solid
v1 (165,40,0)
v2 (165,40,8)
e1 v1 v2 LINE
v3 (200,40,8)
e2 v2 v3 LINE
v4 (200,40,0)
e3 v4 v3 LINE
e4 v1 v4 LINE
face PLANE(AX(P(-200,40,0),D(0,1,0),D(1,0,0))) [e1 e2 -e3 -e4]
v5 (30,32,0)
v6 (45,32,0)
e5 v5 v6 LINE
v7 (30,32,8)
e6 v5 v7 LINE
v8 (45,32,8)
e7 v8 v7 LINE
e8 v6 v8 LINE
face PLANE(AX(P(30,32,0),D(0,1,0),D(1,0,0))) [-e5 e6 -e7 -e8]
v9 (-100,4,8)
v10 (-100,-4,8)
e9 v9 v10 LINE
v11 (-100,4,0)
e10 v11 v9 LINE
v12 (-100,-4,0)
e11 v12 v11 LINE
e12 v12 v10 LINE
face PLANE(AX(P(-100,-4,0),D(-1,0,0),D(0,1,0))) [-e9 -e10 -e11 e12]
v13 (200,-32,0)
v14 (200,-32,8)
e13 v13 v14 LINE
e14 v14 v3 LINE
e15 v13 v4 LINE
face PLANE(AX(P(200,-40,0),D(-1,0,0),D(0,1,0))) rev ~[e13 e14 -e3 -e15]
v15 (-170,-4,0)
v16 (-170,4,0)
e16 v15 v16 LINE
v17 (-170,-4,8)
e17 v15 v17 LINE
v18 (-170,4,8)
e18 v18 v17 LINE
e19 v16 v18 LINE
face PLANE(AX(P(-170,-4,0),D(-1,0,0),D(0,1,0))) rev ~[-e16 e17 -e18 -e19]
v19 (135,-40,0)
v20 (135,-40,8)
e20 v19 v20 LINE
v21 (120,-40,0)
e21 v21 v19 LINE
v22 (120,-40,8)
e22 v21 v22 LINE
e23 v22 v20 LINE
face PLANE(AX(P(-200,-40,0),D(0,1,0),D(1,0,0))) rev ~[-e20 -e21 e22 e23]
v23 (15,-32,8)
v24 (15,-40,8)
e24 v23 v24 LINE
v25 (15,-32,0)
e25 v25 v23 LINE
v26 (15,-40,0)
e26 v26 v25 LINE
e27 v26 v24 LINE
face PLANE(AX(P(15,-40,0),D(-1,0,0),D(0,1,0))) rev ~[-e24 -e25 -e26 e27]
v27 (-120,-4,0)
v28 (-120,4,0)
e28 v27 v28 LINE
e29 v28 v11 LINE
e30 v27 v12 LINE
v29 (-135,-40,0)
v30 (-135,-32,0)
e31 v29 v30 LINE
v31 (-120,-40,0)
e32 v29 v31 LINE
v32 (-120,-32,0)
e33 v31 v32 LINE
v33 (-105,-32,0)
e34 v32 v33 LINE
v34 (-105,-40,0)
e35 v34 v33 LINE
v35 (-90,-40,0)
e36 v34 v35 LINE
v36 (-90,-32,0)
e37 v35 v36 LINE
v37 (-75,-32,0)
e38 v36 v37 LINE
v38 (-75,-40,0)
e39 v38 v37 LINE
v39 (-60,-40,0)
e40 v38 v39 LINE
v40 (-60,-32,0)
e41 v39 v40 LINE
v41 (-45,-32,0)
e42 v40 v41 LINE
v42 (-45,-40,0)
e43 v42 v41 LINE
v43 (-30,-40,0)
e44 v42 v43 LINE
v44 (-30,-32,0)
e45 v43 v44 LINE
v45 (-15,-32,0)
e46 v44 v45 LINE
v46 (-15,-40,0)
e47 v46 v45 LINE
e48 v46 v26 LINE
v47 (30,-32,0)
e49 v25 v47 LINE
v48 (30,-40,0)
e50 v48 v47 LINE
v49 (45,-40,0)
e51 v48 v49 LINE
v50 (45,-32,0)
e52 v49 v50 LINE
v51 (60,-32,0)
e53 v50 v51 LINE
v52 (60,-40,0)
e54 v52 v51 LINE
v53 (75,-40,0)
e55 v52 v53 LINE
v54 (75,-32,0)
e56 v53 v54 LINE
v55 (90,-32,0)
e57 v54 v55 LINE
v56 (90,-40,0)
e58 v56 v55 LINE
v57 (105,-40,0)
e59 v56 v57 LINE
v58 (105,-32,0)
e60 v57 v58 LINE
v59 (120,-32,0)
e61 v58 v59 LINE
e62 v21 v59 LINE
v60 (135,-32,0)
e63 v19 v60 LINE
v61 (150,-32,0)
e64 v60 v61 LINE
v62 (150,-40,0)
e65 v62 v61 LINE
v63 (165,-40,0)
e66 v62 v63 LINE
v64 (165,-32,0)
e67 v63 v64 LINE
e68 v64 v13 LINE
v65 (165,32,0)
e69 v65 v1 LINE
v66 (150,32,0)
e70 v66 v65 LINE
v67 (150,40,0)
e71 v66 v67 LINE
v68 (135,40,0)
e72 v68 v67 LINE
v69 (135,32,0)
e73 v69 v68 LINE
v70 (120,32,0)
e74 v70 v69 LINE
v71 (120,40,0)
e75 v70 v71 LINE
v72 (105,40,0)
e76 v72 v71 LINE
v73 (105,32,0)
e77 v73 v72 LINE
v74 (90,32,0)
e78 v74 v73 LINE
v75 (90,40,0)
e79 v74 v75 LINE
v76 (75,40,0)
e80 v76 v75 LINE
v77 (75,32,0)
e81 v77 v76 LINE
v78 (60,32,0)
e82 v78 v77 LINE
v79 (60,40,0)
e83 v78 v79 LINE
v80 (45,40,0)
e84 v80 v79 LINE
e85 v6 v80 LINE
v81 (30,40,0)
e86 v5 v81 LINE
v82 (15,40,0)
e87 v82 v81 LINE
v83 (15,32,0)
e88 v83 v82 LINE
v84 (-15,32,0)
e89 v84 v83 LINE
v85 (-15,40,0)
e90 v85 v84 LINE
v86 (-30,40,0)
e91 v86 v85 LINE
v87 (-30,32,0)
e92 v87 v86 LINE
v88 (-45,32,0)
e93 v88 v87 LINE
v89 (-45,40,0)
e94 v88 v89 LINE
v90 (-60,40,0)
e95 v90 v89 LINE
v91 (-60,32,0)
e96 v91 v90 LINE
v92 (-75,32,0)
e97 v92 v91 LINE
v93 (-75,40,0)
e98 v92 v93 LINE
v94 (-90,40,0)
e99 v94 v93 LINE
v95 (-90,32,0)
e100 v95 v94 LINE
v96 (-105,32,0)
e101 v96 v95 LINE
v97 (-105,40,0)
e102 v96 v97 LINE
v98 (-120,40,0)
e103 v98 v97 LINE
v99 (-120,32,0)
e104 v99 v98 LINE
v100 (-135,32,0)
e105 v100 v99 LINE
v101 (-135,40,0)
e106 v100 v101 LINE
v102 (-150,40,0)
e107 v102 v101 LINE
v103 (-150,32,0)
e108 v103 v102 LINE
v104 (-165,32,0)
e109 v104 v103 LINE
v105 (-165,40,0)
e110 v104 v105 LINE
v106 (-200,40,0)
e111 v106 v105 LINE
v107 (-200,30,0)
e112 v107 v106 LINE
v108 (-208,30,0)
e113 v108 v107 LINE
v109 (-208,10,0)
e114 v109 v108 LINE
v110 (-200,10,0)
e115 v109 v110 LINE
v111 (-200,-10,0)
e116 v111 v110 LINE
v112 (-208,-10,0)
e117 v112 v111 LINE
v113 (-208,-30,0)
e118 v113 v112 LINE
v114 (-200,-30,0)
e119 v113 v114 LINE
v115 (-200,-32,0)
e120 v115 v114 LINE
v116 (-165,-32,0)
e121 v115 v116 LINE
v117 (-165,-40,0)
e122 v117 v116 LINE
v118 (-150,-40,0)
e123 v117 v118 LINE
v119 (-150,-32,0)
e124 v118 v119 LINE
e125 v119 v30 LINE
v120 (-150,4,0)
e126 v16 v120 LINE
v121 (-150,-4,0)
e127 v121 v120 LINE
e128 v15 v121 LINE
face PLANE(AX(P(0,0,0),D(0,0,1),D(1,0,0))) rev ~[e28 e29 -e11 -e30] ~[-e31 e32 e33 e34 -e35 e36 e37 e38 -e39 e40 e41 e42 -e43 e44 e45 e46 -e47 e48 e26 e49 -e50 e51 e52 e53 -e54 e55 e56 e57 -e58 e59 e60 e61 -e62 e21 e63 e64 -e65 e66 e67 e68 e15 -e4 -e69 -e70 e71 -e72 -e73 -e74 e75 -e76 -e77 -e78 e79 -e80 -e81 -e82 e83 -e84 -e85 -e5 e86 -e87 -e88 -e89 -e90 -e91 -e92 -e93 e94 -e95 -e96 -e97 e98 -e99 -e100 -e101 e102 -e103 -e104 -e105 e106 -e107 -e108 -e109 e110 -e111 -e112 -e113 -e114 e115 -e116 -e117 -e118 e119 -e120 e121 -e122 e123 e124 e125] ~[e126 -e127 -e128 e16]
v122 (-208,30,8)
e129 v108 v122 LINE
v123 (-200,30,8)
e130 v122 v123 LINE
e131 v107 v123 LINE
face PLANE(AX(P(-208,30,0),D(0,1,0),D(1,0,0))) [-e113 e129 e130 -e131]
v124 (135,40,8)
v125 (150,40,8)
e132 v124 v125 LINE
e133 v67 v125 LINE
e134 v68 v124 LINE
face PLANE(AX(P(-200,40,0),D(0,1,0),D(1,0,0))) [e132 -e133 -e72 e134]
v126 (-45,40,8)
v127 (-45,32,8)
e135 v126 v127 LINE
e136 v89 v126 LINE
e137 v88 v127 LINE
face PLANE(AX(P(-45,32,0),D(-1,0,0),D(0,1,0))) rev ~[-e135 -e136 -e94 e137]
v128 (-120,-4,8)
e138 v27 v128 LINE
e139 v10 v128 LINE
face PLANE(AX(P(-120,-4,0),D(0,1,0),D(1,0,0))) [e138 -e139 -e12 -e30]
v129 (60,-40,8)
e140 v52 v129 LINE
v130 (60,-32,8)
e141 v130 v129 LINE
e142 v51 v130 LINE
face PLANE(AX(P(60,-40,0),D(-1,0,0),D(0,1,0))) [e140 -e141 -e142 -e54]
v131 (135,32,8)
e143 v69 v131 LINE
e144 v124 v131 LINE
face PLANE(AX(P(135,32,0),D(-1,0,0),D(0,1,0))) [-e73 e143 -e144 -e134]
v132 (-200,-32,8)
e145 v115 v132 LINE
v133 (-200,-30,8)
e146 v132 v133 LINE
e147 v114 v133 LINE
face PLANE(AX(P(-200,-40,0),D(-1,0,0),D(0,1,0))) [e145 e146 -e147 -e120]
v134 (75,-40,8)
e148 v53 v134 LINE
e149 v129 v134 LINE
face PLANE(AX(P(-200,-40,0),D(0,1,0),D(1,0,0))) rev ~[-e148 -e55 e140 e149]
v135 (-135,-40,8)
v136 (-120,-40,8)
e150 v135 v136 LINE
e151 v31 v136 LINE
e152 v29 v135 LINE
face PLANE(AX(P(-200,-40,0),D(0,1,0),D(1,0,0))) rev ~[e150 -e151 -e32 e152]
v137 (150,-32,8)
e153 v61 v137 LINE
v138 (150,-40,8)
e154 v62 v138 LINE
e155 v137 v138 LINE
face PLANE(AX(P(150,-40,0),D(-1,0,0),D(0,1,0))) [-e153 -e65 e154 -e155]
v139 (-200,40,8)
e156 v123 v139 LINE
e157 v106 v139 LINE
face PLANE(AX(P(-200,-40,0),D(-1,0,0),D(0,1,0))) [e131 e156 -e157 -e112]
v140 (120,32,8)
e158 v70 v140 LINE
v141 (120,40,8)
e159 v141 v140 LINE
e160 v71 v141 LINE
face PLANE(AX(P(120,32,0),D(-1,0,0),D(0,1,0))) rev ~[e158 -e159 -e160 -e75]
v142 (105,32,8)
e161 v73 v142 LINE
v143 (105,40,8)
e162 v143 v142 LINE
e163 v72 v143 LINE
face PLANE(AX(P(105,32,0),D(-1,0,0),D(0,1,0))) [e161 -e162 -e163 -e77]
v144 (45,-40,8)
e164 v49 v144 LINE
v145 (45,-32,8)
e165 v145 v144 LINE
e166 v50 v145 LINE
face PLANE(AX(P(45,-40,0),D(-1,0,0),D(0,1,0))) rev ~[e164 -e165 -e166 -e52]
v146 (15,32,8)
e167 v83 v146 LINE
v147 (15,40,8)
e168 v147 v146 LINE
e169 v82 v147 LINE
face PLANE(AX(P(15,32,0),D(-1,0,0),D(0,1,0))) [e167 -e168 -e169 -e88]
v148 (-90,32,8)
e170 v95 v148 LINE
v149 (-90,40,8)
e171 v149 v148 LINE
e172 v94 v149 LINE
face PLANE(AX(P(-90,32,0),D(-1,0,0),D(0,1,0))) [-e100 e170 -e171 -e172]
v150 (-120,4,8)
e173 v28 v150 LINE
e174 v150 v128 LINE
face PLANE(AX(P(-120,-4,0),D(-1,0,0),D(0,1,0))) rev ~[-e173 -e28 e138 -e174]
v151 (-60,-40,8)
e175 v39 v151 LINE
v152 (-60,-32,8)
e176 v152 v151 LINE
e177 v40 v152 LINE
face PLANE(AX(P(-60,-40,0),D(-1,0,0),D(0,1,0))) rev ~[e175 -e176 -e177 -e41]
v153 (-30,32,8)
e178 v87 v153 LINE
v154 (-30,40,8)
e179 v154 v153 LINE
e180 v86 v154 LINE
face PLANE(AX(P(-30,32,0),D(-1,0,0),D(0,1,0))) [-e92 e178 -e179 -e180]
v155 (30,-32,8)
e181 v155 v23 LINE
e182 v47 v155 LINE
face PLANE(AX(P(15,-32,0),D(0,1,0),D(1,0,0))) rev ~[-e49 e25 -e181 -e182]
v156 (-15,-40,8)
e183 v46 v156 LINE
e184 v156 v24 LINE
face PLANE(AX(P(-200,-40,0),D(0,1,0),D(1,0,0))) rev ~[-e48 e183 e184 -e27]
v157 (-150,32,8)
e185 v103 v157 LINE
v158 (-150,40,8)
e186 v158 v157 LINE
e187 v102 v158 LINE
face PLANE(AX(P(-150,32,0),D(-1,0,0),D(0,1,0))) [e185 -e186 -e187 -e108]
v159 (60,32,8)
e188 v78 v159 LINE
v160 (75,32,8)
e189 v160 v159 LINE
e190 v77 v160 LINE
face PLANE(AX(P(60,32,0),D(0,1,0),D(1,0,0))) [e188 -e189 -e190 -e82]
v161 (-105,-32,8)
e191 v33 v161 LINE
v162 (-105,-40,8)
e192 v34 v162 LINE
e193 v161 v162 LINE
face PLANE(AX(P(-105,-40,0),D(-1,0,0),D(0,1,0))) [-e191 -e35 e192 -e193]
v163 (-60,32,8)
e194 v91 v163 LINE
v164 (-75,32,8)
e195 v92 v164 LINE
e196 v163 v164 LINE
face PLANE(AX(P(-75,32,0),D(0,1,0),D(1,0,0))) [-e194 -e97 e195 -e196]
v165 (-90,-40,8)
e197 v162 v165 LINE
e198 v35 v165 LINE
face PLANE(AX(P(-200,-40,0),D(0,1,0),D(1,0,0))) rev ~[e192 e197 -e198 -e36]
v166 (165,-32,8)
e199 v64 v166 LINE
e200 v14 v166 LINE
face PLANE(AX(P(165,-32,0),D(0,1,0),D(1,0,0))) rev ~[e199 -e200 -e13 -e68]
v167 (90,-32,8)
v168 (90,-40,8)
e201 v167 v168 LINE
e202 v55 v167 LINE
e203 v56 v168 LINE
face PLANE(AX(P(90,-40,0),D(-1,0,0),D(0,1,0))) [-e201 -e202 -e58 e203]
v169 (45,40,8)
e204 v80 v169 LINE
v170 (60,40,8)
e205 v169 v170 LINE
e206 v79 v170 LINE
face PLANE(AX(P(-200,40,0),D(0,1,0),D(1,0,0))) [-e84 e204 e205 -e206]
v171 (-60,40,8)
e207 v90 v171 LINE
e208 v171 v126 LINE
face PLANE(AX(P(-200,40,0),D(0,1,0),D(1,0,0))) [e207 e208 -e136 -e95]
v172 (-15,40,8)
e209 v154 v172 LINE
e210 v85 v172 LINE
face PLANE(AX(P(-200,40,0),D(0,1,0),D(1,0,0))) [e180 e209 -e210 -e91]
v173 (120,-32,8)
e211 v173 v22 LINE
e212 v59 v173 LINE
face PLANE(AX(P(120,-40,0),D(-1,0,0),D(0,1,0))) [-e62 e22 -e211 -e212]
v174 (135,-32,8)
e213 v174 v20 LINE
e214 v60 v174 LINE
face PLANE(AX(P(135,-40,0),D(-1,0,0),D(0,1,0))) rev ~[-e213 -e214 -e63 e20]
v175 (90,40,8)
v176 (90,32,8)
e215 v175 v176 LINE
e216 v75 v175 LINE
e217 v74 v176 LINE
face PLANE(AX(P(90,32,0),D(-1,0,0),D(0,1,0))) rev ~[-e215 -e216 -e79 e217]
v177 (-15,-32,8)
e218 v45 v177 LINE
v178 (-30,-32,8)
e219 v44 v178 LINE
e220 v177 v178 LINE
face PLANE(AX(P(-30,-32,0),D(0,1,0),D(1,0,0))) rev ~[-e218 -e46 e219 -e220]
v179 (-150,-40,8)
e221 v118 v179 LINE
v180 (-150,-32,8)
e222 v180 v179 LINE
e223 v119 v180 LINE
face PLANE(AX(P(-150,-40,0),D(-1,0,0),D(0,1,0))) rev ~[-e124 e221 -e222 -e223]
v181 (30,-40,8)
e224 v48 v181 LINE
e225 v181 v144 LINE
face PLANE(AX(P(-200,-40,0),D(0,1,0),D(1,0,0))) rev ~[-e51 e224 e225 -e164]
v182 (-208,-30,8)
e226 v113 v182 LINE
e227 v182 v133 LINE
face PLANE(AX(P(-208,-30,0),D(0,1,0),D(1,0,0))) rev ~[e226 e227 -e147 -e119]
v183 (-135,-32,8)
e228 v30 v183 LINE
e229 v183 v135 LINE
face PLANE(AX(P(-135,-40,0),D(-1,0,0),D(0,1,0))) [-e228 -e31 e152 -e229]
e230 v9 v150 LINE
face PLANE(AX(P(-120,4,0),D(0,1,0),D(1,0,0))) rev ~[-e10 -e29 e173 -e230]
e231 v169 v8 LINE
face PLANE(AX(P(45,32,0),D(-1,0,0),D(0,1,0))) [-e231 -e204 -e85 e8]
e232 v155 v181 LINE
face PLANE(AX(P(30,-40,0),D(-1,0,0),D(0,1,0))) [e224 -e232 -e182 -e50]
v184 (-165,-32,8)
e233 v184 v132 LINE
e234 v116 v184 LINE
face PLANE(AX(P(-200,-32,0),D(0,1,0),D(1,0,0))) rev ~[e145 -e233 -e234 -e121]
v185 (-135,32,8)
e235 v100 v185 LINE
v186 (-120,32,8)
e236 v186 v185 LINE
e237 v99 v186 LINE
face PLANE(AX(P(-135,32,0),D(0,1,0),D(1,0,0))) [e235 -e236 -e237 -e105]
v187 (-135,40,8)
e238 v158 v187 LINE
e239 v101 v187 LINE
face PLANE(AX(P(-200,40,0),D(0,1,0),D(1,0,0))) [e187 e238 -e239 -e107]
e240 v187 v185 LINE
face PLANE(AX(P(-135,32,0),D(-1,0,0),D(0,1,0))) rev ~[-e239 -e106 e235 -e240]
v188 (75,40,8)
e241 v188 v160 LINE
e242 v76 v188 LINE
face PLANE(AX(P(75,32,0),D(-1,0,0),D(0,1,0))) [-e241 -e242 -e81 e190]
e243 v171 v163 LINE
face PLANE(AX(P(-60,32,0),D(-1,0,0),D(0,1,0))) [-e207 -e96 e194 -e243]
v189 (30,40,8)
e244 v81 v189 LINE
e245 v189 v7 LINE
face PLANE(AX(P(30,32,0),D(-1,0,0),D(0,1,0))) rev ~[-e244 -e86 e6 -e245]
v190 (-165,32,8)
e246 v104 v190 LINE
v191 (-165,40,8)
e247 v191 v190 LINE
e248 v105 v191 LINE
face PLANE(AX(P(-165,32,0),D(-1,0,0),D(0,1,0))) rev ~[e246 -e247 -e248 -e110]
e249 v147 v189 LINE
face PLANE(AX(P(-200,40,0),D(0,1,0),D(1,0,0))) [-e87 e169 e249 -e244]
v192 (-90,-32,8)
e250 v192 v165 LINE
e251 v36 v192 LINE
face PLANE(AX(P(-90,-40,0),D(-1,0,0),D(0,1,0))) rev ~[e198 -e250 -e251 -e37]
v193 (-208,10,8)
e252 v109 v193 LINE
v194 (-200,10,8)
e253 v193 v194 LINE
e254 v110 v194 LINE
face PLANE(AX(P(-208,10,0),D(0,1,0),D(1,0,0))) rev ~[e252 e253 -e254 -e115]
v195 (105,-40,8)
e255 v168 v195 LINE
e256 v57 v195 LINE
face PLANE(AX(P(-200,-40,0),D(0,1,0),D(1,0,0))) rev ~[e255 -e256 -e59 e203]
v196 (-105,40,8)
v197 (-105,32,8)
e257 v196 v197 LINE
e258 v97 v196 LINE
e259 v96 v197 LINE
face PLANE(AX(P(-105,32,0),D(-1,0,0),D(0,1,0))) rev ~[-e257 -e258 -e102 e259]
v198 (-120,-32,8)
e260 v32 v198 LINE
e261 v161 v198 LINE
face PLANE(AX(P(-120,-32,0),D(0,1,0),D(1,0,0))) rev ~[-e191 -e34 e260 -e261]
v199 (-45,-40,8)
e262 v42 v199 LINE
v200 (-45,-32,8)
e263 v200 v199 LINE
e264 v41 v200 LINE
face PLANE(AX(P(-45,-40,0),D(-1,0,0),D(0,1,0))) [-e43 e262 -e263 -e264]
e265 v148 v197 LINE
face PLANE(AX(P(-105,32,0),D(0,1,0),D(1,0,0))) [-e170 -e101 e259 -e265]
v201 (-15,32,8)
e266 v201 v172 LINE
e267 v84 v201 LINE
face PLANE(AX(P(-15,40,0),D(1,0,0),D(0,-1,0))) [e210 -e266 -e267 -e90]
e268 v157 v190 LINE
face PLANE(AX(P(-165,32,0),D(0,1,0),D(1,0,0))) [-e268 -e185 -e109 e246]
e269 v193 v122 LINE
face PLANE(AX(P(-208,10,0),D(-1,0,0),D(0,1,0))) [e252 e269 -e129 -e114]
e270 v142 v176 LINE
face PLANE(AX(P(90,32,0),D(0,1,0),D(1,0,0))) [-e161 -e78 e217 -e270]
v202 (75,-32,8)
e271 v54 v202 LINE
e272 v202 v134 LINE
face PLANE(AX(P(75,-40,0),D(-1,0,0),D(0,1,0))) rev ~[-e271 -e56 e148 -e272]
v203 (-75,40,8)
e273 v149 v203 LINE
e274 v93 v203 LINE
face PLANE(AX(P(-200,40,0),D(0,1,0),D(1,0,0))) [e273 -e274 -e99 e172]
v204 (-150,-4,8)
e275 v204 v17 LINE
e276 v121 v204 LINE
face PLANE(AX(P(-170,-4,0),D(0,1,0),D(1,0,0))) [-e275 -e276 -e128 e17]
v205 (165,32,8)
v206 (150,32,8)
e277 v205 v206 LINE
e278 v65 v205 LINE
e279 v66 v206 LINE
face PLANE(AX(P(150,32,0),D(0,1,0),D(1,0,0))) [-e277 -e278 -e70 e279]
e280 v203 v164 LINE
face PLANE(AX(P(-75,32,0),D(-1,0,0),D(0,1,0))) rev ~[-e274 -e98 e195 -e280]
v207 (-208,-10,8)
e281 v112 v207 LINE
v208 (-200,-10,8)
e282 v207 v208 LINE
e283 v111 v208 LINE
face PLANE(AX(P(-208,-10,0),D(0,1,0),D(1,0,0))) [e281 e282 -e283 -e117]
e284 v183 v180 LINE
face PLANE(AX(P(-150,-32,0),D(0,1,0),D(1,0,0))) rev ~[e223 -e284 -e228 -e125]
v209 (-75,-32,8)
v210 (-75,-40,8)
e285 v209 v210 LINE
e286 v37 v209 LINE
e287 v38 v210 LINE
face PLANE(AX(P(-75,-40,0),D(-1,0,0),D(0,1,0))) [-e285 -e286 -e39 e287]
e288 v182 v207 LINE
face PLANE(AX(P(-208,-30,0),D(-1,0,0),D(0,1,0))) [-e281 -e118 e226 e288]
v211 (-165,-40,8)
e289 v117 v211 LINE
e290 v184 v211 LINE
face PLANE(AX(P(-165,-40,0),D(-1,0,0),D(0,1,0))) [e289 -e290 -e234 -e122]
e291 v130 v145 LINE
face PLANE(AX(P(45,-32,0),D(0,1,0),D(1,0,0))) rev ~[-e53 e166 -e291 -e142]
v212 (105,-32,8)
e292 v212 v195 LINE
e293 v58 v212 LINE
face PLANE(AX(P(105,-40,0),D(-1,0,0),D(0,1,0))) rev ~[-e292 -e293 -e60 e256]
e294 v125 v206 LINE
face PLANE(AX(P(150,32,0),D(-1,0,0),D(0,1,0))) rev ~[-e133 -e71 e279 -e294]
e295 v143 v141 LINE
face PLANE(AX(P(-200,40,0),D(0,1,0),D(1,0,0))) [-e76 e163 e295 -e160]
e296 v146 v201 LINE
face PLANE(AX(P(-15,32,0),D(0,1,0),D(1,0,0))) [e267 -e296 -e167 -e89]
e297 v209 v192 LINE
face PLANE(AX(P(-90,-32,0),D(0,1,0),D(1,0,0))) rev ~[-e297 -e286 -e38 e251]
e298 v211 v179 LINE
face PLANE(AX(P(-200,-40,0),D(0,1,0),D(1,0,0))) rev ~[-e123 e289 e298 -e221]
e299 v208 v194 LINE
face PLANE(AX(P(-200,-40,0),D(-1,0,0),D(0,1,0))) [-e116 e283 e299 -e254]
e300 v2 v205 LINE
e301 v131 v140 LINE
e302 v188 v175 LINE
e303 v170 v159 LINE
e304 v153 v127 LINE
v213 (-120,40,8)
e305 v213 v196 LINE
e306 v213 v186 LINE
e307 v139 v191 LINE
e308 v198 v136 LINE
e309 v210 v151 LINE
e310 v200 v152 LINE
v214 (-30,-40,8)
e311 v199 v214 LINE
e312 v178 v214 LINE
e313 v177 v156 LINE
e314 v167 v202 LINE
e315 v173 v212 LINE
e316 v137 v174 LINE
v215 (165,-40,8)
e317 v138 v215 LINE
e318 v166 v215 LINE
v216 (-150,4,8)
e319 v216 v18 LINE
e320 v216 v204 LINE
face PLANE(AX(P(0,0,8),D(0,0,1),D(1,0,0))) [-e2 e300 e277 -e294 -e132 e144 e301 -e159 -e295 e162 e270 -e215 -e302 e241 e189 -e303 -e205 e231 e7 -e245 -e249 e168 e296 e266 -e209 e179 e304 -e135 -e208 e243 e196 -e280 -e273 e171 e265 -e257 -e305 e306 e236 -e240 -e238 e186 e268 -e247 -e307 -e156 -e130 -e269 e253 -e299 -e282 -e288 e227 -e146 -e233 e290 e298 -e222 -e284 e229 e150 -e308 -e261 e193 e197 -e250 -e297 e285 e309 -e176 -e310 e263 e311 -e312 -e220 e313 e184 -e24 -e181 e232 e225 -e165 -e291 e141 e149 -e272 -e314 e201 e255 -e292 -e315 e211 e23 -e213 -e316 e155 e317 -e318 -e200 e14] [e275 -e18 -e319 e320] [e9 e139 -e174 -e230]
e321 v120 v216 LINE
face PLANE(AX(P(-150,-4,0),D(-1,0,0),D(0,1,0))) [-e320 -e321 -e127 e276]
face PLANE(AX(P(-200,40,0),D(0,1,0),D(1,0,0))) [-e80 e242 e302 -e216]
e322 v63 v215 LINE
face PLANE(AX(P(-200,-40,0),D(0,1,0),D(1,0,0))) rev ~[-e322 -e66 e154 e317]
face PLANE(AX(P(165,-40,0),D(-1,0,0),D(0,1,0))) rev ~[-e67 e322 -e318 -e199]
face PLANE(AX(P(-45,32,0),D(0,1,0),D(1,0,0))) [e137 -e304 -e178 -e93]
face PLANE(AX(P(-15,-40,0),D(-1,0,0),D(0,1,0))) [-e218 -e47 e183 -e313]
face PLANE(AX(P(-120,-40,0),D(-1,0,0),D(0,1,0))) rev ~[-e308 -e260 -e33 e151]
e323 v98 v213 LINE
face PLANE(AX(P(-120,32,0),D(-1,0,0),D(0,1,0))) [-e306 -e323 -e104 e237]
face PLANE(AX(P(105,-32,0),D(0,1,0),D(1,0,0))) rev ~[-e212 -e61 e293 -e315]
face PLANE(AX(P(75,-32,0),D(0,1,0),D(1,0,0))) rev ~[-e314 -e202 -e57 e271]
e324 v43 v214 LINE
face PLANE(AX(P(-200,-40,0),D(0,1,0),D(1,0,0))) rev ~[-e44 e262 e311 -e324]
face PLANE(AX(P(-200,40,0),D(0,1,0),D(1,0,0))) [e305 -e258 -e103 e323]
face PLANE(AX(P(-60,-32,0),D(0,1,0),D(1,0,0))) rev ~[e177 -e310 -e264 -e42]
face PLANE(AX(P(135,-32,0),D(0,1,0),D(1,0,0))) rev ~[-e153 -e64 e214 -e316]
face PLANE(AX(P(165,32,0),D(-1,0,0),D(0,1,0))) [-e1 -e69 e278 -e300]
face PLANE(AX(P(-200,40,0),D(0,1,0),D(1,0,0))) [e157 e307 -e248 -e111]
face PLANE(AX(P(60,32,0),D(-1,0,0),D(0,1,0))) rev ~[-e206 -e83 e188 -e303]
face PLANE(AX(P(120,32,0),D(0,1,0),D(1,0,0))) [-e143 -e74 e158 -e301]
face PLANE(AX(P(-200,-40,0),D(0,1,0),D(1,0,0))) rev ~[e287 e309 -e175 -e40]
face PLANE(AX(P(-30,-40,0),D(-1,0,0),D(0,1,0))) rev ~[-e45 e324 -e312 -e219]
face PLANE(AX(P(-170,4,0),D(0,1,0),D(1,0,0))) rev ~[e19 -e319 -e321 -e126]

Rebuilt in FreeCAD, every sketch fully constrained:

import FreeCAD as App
import Part
import Sketcher

V = App.Vector

doc = App.newDocument("Part")
body = doc.addObject("PartDesign::Body", "Body")

sketch1 = doc.addObject("Sketcher::SketchObject", "Sketch")
body.addObject(sketch1)
sketch1.AttachmentSupport = (doc.XY_Plane, [""])
sketch1.MapMode = "FlatFace"
sketch1.addGeometry([
    Part.LineSegment(V(-200, 40, 0), V(-200, -40, 0)),
    Part.LineSegment(V(-200, -40, 0), V(200, -40, 0)),
    Part.LineSegment(V(200, -40, 0), V(200, 40, 0)),
    Part.LineSegment(V(200, 40, 0), V(-200, 40, 0)),
], False)
sketch1.addConstraint([
    Sketcher.Constraint("Coincident", 0, 2, 1, 1),
    Sketcher.Constraint("Coincident", 1, 2, 2, 1),
    Sketcher.Constraint("Coincident", 2, 2, 3, 1),
    Sketcher.Constraint("Coincident", 3, 2, 0, 1),
    Sketcher.Constraint("Vertical", 0),
    Sketcher.Constraint("Horizontal", 1),
    Sketcher.Constraint("Vertical", 2),
    Sketcher.Constraint("Horizontal", 3),
    Sketcher.Constraint("Symmetric", 0, 2, 2, 2, -1, 1),
    Sketcher.Constraint("DistanceX", 1, 1, 1, 2, 400.0),
    Sketcher.Constraint("DistanceY", 0, 2, 0, 1, 80.0),
])
pad1 = doc.addObject("PartDesign::Pad", "Pad")
body.addObject(pad1)
pad1.Profile = sketch1
pad1.Length = 8

sketch2 = doc.addObject("Sketcher::SketchObject", "Sketch001")
body.addObject(sketch2)
sketch2.AttachmentSupport = (doc.XY_Plane, [""])
sketch2.MapMode = "FlatFace"
sketch2.addGeometry([
    Part.LineSegment(V(-208, 30, 0), V(-208, 10, 0)),
    Part.LineSegment(V(-208, 10, 0), V(-200, 10, 0)),
    Part.LineSegment(V(-200, 10, 0), V(-200, 30, 0)),
    Part.LineSegment(V(-200, 30, 0), V(-208, 30, 0)),
    Part.LineSegment(V(-208, -10, 0), V(-208, -30, 0)),
    Part.LineSegment(V(-208, -30, 0), V(-200, -30, 0)),
    Part.LineSegment(V(-200, -30, 0), V(-200, -10, 0)),
    Part.LineSegment(V(-200, -10, 0), V(-208, -10, 0)),
], False)
sketch2.addConstraint([
    Sketcher.Constraint("Coincident", 0, 2, 1, 1),
    Sketcher.Constraint("Coincident", 1, 2, 2, 1),
    Sketcher.Constraint("Coincident", 2, 2, 3, 1),
    Sketcher.Constraint("Coincident", 3, 2, 0, 1),
    Sketcher.Constraint("Coincident", 4, 2, 5, 1),
    Sketcher.Constraint("Coincident", 5, 2, 6, 1),
    Sketcher.Constraint("Coincident", 6, 2, 7, 1),
    Sketcher.Constraint("Coincident", 7, 2, 4, 1),
    Sketcher.Constraint("Vertical", 0),
    Sketcher.Constraint("Horizontal", 1),
    Sketcher.Constraint("Vertical", 2),
    Sketcher.Constraint("Horizontal", 3),
    Sketcher.Constraint("Vertical", 4),
    Sketcher.Constraint("Horizontal", 5),
    Sketcher.Constraint("Vertical", 6),
    Sketcher.Constraint("Horizontal", 7),
    Sketcher.Constraint("Symmetric", 3, 2, 4, 2, -1),
    Sketcher.Constraint("Symmetric", 1, 2, 6, 2, -1),
    Sketcher.Constraint("DistanceX", 1, 1, 1, 2, 8.0),
    Sketcher.Constraint("DistanceY", 0, 2, 0, 1, 20.0),
    Sketcher.Constraint("DistanceX", 0, 2, -1, 1, 208.0),
    Sketcher.Constraint("DistanceY", -1, 1, 0, 2, 10.0),
])
pad2 = doc.addObject("PartDesign::Pad", "Pad001")
body.addObject(pad2)
pad2.Profile = sketch2
pad2.Length = 8

sketch3 = doc.addObject("Sketcher::SketchObject", "Sketch002")
body.addObject(sketch3)
sketch3.AttachmentSupport = (doc.XY_Plane, [""])
sketch3.MapMode = "FlatFace"
sketch3.addGeometry([
    Part.LineSegment(V(-15, 40, 0), V(-15, 32, 0)),
    Part.LineSegment(V(-15, 32, 0), V(15, 32, 0)),
    Part.LineSegment(V(15, 32, 0), V(15, 40, 0)),
    Part.LineSegment(V(15, 40, 0), V(-15, 40, 0)),
    Part.LineSegment(V(-45, 40, 0), V(-45, 32, 0)),
    Part.LineSegment(V(-45, 32, 0), V(-30, 32, 0)),
    Part.LineSegment(V(-30, 32, 0), V(-30, 40, 0)),
    Part.LineSegment(V(-30, 40, 0), V(-45, 40, 0)),
    Part.LineSegment(V(-75, 40, 0), V(-75, 32, 0)),
    Part.LineSegment(V(-75, 32, 0), V(-60, 32, 0)),
    Part.LineSegment(V(-60, 32, 0), V(-60, 40, 0)),
    Part.LineSegment(V(-60, 40, 0), V(-75, 40, 0)),
    Part.LineSegment(V(-105, 40, 0), V(-105, 32, 0)),
    Part.LineSegment(V(-105, 32, 0), V(-90, 32, 0)),
    Part.LineSegment(V(-90, 32, 0), V(-90, 40, 0)),
    Part.LineSegment(V(-90, 40, 0), V(-105, 40, 0)),
    Part.LineSegment(V(-135, 40, 0), V(-135, 32, 0)),
    Part.LineSegment(V(-135, 32, 0), V(-120, 32, 0)),
    Part.LineSegment(V(-120, 32, 0), V(-120, 40, 0)),
    Part.LineSegment(V(-120, 40, 0), V(-135, 40, 0)),
    Part.LineSegment(V(-165, 40, 0), V(-165, 32, 0)),
    Part.LineSegment(V(-165, 32, 0), V(-150, 32, 0)),
    Part.LineSegment(V(-150, 32, 0), V(-150, 40, 0)),
    Part.LineSegment(V(-150, 40, 0), V(-165, 40, 0)),
    Part.LineSegment(V(30, 40, 0), V(30, 32, 0)),
    Part.LineSegment(V(30, 32, 0), V(45, 32, 0)),
    Part.LineSegment(V(45, 32, 0), V(45, 40, 0)),
    Part.LineSegment(V(45, 40, 0), V(30, 40, 0)),
    Part.LineSegment(V(60, 40, 0), V(60, 32, 0)),
    Part.LineSegment(V(60, 32, 0), V(75, 32, 0)),
    Part.LineSegment(V(75, 32, 0), V(75, 40, 0)),
    Part.LineSegment(V(75, 40, 0), V(60, 40, 0)),
    Part.LineSegment(V(90, 40, 0), V(90, 32, 0)),
    Part.LineSegment(V(90, 32, 0), V(105, 32, 0)),
    Part.LineSegment(V(105, 32, 0), V(105, 40, 0)),
    Part.LineSegment(V(105, 40, 0), V(90, 40, 0)),
    Part.LineSegment(V(120, 40, 0), V(120, 32, 0)),
    Part.LineSegment(V(120, 32, 0), V(135, 32, 0)),
    Part.LineSegment(V(135, 32, 0), V(135, 40, 0)),
    Part.LineSegment(V(135, 40, 0), V(120, 40, 0)),
    Part.LineSegment(V(150, 40, 0), V(150, 32, 0)),
    Part.LineSegment(V(150, 32, 0), V(165, 32, 0)),
    Part.LineSegment(V(165, 32, 0), V(165, 40, 0)),
    Part.LineSegment(V(165, 40, 0), V(150, 40, 0)),
], False)
sketch3.addConstraint([
    Sketcher.Constraint("Coincident", 0, 2, 1, 1),
    Sketcher.Constraint("Coincident", 1, 2, 2, 1),
    Sketcher.Constraint("Coincident", 2, 2, 3, 1),
    Sketcher.Constraint("Coincident", 3, 2, 0, 1),
    Sketcher.Constraint("Coincident", 4, 2, 5, 1),
    Sketcher.Constraint("Coincident", 5, 2, 6, 1),
    Sketcher.Constraint("Coincident", 6, 2, 7, 1),
    Sketcher.Constraint("Coincident", 7, 2, 4, 1),
    Sketcher.Constraint("Coincident", 8, 2, 9, 1),
    Sketcher.Constraint("Coincident", 9, 2, 10, 1),
    Sketcher.Constraint("Coincident", 10, 2, 11, 1),
    Sketcher.Constraint("Coincident", 11, 2, 8, 1),
    Sketcher.Constraint("Coincident", 12, 2, 13, 1),
    Sketcher.Constraint("Coincident", 13, 2, 14, 1),
    Sketcher.Constraint("Coincident", 14, 2, 15, 1),
    Sketcher.Constraint("Coincident", 15, 2, 12, 1),
    Sketcher.Constraint("Coincident", 16, 2, 17, 1),
    Sketcher.Constraint("Coincident", 17, 2, 18, 1),
    Sketcher.Constraint("Coincident", 18, 2, 19, 1),
    Sketcher.Constraint("Coincident", 19, 2, 16, 1),
    Sketcher.Constraint("Coincident", 20, 2, 21, 1),
    Sketcher.Constraint("Coincident", 21, 2, 22, 1),
    Sketcher.Constraint("Coincident", 22, 2, 23, 1),
    Sketcher.Constraint("Coincident", 23, 2, 20, 1),
    Sketcher.Constraint("Coincident", 24, 2, 25, 1),
    Sketcher.Constraint("Coincident", 25, 2, 26, 1),
    Sketcher.Constraint("Coincident", 26, 2, 27, 1),
    Sketcher.Constraint("Coincident", 27, 2, 24, 1),
    Sketcher.Constraint("Coincident", 28, 2, 29, 1),
    Sketcher.Constraint("Coincident", 29, 2, 30, 1),
    Sketcher.Constraint("Coincident", 30, 2, 31, 1),
    Sketcher.Constraint("Coincident", 31, 2, 28, 1),
    Sketcher.Constraint("Coincident", 32, 2, 33, 1),
    Sketcher.Constraint("Coincident", 33, 2, 34, 1),
    Sketcher.Constraint("Coincident", 34, 2, 35, 1),
    Sketcher.Constraint("Coincident", 35, 2, 32, 1),
    Sketcher.Constraint("Coincident", 36, 2, 37, 1),
    Sketcher.Constraint("Coincident", 37, 2, 38, 1),
    Sketcher.Constraint("Coincident", 38, 2, 39, 1),
    Sketcher.Constraint("Coincident", 39, 2, 36, 1),
    Sketcher.Constraint("Coincident", 40, 2, 41, 1),
    Sketcher.Constraint("Coincident", 41, 2, 42, 1),
    Sketcher.Constraint("Coincident", 42, 2, 43, 1),
    Sketcher.Constraint("Coincident", 43, 2, 40, 1),
    Sketcher.Constraint("Vertical", 0),
    Sketcher.Constraint("Horizontal", 1),
    Sketcher.Constraint("Vertical", 2),
    Sketcher.Constraint("Horizontal", 3),
    Sketcher.Constraint("Vertical", 4),
    Sketcher.Constraint("Horizontal", 5),
    Sketcher.Constraint("Vertical", 6),
    Sketcher.Constraint("Horizontal", 7),
    Sketcher.Constraint("Vertical", 8),
    Sketcher.Constraint("Horizontal", 9),
    Sketcher.Constraint("Vertical", 10),
    Sketcher.Constraint("Horizontal", 11),
    Sketcher.Constraint("Vertical", 12),
    Sketcher.Constraint("Horizontal", 13),
    Sketcher.Constraint("Vertical", 14),
    Sketcher.Constraint("Horizontal", 15),
    Sketcher.Constraint("Vertical", 16),
    Sketcher.Constraint("Horizontal", 17),
    Sketcher.Constraint("Vertical", 18),
    Sketcher.Constraint("Horizontal", 19),
    Sketcher.Constraint("Vertical", 20),
    Sketcher.Constraint("Horizontal", 21),
    Sketcher.Constraint("Vertical", 22),
    Sketcher.Constraint("Horizontal", 23),
    Sketcher.Constraint("Vertical", 24),
    Sketcher.Constraint("Horizontal", 25),
    Sketcher.Constraint("Vertical", 26),
    Sketcher.Constraint("Horizontal", 27),
    Sketcher.Constraint("Vertical", 28),
    Sketcher.Constraint("Horizontal", 29),
    Sketcher.Constraint("Vertical", 30),
    Sketcher.Constraint("Horizontal", 31),
    Sketcher.Constraint("Vertical", 32),
    Sketcher.Constraint("Horizontal", 33),
    Sketcher.Constraint("Vertical", 34),
    Sketcher.Constraint("Horizontal", 35),
    Sketcher.Constraint("Vertical", 36),
    Sketcher.Constraint("Horizontal", 37),
    Sketcher.Constraint("Vertical", 38),
    Sketcher.Constraint("Horizontal", 39),
    Sketcher.Constraint("Vertical", 40),
    Sketcher.Constraint("Horizontal", 41),
    Sketcher.Constraint("Vertical", 42),
    Sketcher.Constraint("Horizontal", 43),
    Sketcher.Constraint("Symmetric", 5, 2, 24, 2, -2),
    Sketcher.Constraint("Symmetric", 7, 2, 26, 2, -2),
    Sketcher.Constraint("Symmetric", 9, 2, 28, 2, -2),
    Sketcher.Constraint("Symmetric", 11, 2, 30, 2, -2),
    Sketcher.Constraint("Symmetric", 13, 2, 32, 2, -2),
    Sketcher.Constraint("Symmetric", 15, 2, 34, 2, -2),
    Sketcher.Constraint("Symmetric", 17, 2, 36, 2, -2),
    Sketcher.Constraint("Symmetric", 19, 2, 38, 2, -2),
    Sketcher.Constraint("Symmetric", 21, 2, 40, 2, -2),
    Sketcher.Constraint("Symmetric", 23, 2, 42, 2, -2),
    Sketcher.Constraint("Horizontal", 1, 2, 4, 2),
    Sketcher.Constraint("Horizontal", 3, 2, 6, 2),
    Sketcher.Constraint("Horizontal", 5, 2, 8, 2),
    Sketcher.Constraint("Horizontal", 7, 2, 10, 2),
    Sketcher.Constraint("Horizontal", 9, 2, 12, 2),
    Sketcher.Constraint("Horizontal", 11, 2, 14, 2),
    Sketcher.Constraint("Horizontal", 13, 2, 16, 2),
    Sketcher.Constraint("Horizontal", 15, 2, 18, 2),
    Sketcher.Constraint("Horizontal", 17, 2, 20, 2),
    Sketcher.Constraint("Horizontal", 19, 2, 22, 2),
    Sketcher.Constraint("Equal", 7, 9),
    Sketcher.Constraint("Equal", 11, 13),
    Sketcher.Constraint("Equal", 15, 17),
    Sketcher.Constraint("Equal", 19, 21),
    Sketcher.Constraint("DistanceX", 1, 1, 1, 2, 30.0),
    Sketcher.Constraint("DistanceX", 5, 1, 5, 2, 15.0),
    Sketcher.Constraint("DistanceY", 0, 2, 0, 1, 8.0),
    Sketcher.Constraint("DistanceX", 0, 2, -1, 1, 15.0),
    Sketcher.Constraint("DistanceY", -1, 1, 0, 2, 32.0),
    Sketcher.Constraint("DistanceX", 4, 2, -1, 1, 45.0),
    Sketcher.Constraint("DistanceX", 8, 2, -1, 1, 75.0),
    Sketcher.Constraint("DistanceX", 12, 2, -1, 1, 105.0),
    Sketcher.Constraint("DistanceX", 16, 2, -1, 1, 135.0),
    Sketcher.Constraint("DistanceX", 20, 2, -1, 1, 165.0),
])
pocket1 = doc.addObject("PartDesign::Pocket", "Pocket")
body.addObject(pocket1)
pocket1.Profile = sketch3
pocket1.Type = "ThroughAll"
pocket1.Reversed = True

sketch4 = doc.addObject("Sketcher::SketchObject", "Sketch003")
body.addObject(sketch4)
sketch4.AttachmentSupport = (doc.XY_Plane, [""])
sketch4.MapMode = "FlatFace"
sketch4.addGeometry([
    Part.LineSegment(V(-30, -32, 0), V(-30, -40, 0)),
    Part.LineSegment(V(-30, -40, 0), V(-15, -40, 0)),
    Part.LineSegment(V(-15, -40, 0), V(-15, -32, 0)),
    Part.LineSegment(V(-15, -32, 0), V(-30, -32, 0)),
    Part.LineSegment(V(-60, -32, 0), V(-60, -40, 0)),
    Part.LineSegment(V(-60, -40, 0), V(-45, -40, 0)),
    Part.LineSegment(V(-45, -40, 0), V(-45, -32, 0)),
    Part.LineSegment(V(-45, -32, 0), V(-60, -32, 0)),
    Part.LineSegment(V(-90, -32, 0), V(-90, -40, 0)),
    Part.LineSegment(V(-90, -40, 0), V(-75, -40, 0)),
    Part.LineSegment(V(-75, -40, 0), V(-75, -32, 0)),
    Part.LineSegment(V(-75, -32, 0), V(-90, -32, 0)),
    Part.LineSegment(V(-120, -32, 0), V(-120, -40, 0)),
    Part.LineSegment(V(-120, -40, 0), V(-105, -40, 0)),
    Part.LineSegment(V(-105, -40, 0), V(-105, -32, 0)),
    Part.LineSegment(V(-105, -32, 0), V(-120, -32, 0)),
    Part.LineSegment(V(-150, -32, 0), V(-150, -40, 0)),
    Part.LineSegment(V(-150, -40, 0), V(-135, -40, 0)),
    Part.LineSegment(V(-135, -40, 0), V(-135, -32, 0)),
    Part.LineSegment(V(-135, -32, 0), V(-150, -32, 0)),
    Part.LineSegment(V(-200, -32, 0), V(-200, -40, 0)),
    Part.LineSegment(V(-200, -40, 0), V(-165, -40, 0)),
    Part.LineSegment(V(-165, -40, 0), V(-165, -32, 0)),
    Part.LineSegment(V(-165, -32, 0), V(-200, -32, 0)),
    Part.LineSegment(V(15, -32, 0), V(15, -40, 0)),
    Part.LineSegment(V(15, -40, 0), V(30, -40, 0)),
    Part.LineSegment(V(30, -40, 0), V(30, -32, 0)),
    Part.LineSegment(V(30, -32, 0), V(15, -32, 0)),
    Part.LineSegment(V(45, -32, 0), V(45, -40, 0)),
    Part.LineSegment(V(45, -40, 0), V(60, -40, 0)),
    Part.LineSegment(V(60, -40, 0), V(60, -32, 0)),
    Part.LineSegment(V(60, -32, 0), V(45, -32, 0)),
    Part.LineSegment(V(75, -32, 0), V(75, -40, 0)),
    Part.LineSegment(V(75, -40, 0), V(90, -40, 0)),
    Part.LineSegment(V(90, -40, 0), V(90, -32, 0)),
    Part.LineSegment(V(90, -32, 0), V(75, -32, 0)),
    Part.LineSegment(V(105, -32, 0), V(105, -40, 0)),
    Part.LineSegment(V(105, -40, 0), V(120, -40, 0)),
    Part.LineSegment(V(120, -40, 0), V(120, -32, 0)),
    Part.LineSegment(V(120, -32, 0), V(105, -32, 0)),
    Part.LineSegment(V(135, -32, 0), V(135, -40, 0)),
    Part.LineSegment(V(135, -40, 0), V(150, -40, 0)),
    Part.LineSegment(V(150, -40, 0), V(150, -32, 0)),
    Part.LineSegment(V(150, -32, 0), V(135, -32, 0)),
    Part.LineSegment(V(165, -32, 0), V(165, -40, 0)),
    Part.LineSegment(V(165, -40, 0), V(200, -40, 0)),
    Part.LineSegment(V(200, -40, 0), V(200, -32, 0)),
    Part.LineSegment(V(200, -32, 0), V(165, -32, 0)),
], False)
sketch4.addConstraint([
    Sketcher.Constraint("Coincident", 0, 2, 1, 1),
    Sketcher.Constraint("Coincident", 1, 2, 2, 1),
    Sketcher.Constraint("Coincident", 2, 2, 3, 1),
    Sketcher.Constraint("Coincident", 3, 2, 0, 1),
    Sketcher.Constraint("Coincident", 4, 2, 5, 1),
    Sketcher.Constraint("Coincident", 5, 2, 6, 1),
    Sketcher.Constraint("Coincident", 6, 2, 7, 1),
    Sketcher.Constraint("Coincident", 7, 2, 4, 1),
    Sketcher.Constraint("Coincident", 8, 2, 9, 1),
    Sketcher.Constraint("Coincident", 9, 2, 10, 1),
    Sketcher.Constraint("Coincident", 10, 2, 11, 1),
    Sketcher.Constraint("Coincident", 11, 2, 8, 1),
    Sketcher.Constraint("Coincident", 12, 2, 13, 1),
    Sketcher.Constraint("Coincident", 13, 2, 14, 1),
    Sketcher.Constraint("Coincident", 14, 2, 15, 1),
    Sketcher.Constraint("Coincident", 15, 2, 12, 1),
    Sketcher.Constraint("Coincident", 16, 2, 17, 1),
    Sketcher.Constraint("Coincident", 17, 2, 18, 1),
    Sketcher.Constraint("Coincident", 18, 2, 19, 1),
    Sketcher.Constraint("Coincident", 19, 2, 16, 1),
    Sketcher.Constraint("Coincident", 20, 2, 21, 1),
    Sketcher.Constraint("Coincident", 21, 2, 22, 1),
    Sketcher.Constraint("Coincident", 22, 2, 23, 1),
    Sketcher.Constraint("Coincident", 23, 2, 20, 1),
    Sketcher.Constraint("Coincident", 24, 2, 25, 1),
    Sketcher.Constraint("Coincident", 25, 2, 26, 1),
    Sketcher.Constraint("Coincident", 26, 2, 27, 1),
    Sketcher.Constraint("Coincident", 27, 2, 24, 1),
    Sketcher.Constraint("Coincident", 28, 2, 29, 1),
    Sketcher.Constraint("Coincident", 29, 2, 30, 1),
    Sketcher.Constraint("Coincident", 30, 2, 31, 1),
    Sketcher.Constraint("Coincident", 31, 2, 28, 1),
    Sketcher.Constraint("Coincident", 32, 2, 33, 1),
    Sketcher.Constraint("Coincident", 33, 2, 34, 1),
    Sketcher.Constraint("Coincident", 34, 2, 35, 1),
    Sketcher.Constraint("Coincident", 35, 2, 32, 1),
    Sketcher.Constraint("Coincident", 36, 2, 37, 1),
    Sketcher.Constraint("Coincident", 37, 2, 38, 1),
    Sketcher.Constraint("Coincident", 38, 2, 39, 1),
    Sketcher.Constraint("Coincident", 39, 2, 36, 1),
    Sketcher.Constraint("Coincident", 40, 2, 41, 1),
    Sketcher.Constraint("Coincident", 41, 2, 42, 1),
    Sketcher.Constraint("Coincident", 42, 2, 43, 1),
    Sketcher.Constraint("Coincident", 43, 2, 40, 1),
    Sketcher.Constraint("Coincident", 44, 2, 45, 1),
    Sketcher.Constraint("Coincident", 45, 2, 46, 1),
    Sketcher.Constraint("Coincident", 46, 2, 47, 1),
    Sketcher.Constraint("Coincident", 47, 2, 44, 1),
    Sketcher.Constraint("Vertical", 0),
    Sketcher.Constraint("Horizontal", 1),
    Sketcher.Constraint("Vertical", 2),
    Sketcher.Constraint("Horizontal", 3),
    Sketcher.Constraint("Vertical", 4),
    Sketcher.Constraint("Horizontal", 5),
    Sketcher.Constraint("Vertical", 6),
    Sketcher.Constraint("Horizontal", 7),
    Sketcher.Constraint("Vertical", 8),
    Sketcher.Constraint("Horizontal", 9),
    Sketcher.Constraint("Vertical", 10),
    Sketcher.Constraint("Horizontal", 11),
    Sketcher.Constraint("Vertical", 12),
    Sketcher.Constraint("Horizontal", 13),
    Sketcher.Constraint("Vertical", 14),
    Sketcher.Constraint("Horizontal", 15),
    Sketcher.Constraint("Vertical", 16),
    Sketcher.Constraint("Horizontal", 17),
    Sketcher.Constraint("Vertical", 18),
    Sketcher.Constraint("Horizontal", 19),
    Sketcher.Constraint("Vertical", 20),
    Sketcher.Constraint("Horizontal", 21),
    Sketcher.Constraint("Vertical", 22),
    Sketcher.Constraint("Horizontal", 23),
    Sketcher.Constraint("Vertical", 24),
    Sketcher.Constraint("Horizontal", 25),
    Sketcher.Constraint("Vertical", 26),
    Sketcher.Constraint("Horizontal", 27),
    Sketcher.Constraint("Vertical", 28),
    Sketcher.Constraint("Horizontal", 29),
    Sketcher.Constraint("Vertical", 30),
    Sketcher.Constraint("Horizontal", 31),
    Sketcher.Constraint("Vertical", 32),
    Sketcher.Constraint("Horizontal", 33),
    Sketcher.Constraint("Vertical", 34),
    Sketcher.Constraint("Horizontal", 35),
    Sketcher.Constraint("Vertical", 36),
    Sketcher.Constraint("Horizontal", 37),
    Sketcher.Constraint("Vertical", 38),
    Sketcher.Constraint("Horizontal", 39),
    Sketcher.Constraint("Vertical", 40),
    Sketcher.Constraint("Horizontal", 41),
    Sketcher.Constraint("Vertical", 42),
    Sketcher.Constraint("Horizontal", 43),
    Sketcher.Constraint("Vertical", 44),
    Sketcher.Constraint("Horizontal", 45),
    Sketcher.Constraint("Vertical", 46),
    Sketcher.Constraint("Horizontal", 47),
    Sketcher.Constraint("Symmetric", 1, 2, 24, 2, -2),
    Sketcher.Constraint("Symmetric", 3, 2, 26, 2, -2),
    Sketcher.Constraint("Symmetric", 5, 2, 28, 2, -2),
    Sketcher.Constraint("Symmetric", 7, 2, 30, 2, -2),
    Sketcher.Constraint("Symmetric", 9, 2, 32, 2, -2),
    Sketcher.Constraint("Symmetric", 11, 2, 34, 2, -2),
    Sketcher.Constraint("Symmetric", 13, 2, 36, 2, -2),
    Sketcher.Constraint("Symmetric", 15, 2, 38, 2, -2),
    Sketcher.Constraint("Symmetric", 17, 2, 40, 2, -2),
    Sketcher.Constraint("Symmetric", 19, 2, 42, 2, -2),
    Sketcher.Constraint("Symmetric", 21, 2, 44, 2, -2),
    Sketcher.Constraint("Symmetric", 23, 2, 46, 2, -2),
    Sketcher.Constraint("Horizontal", 1, 2, 4, 2),
    Sketcher.Constraint("Horizontal", 3, 2, 6, 2),
    Sketcher.Constraint("Horizontal", 5, 2, 8, 2),
    Sketcher.Constraint("Horizontal", 7, 2, 10, 2),
    Sketcher.Constraint("Horizontal", 9, 2, 12, 2),
    Sketcher.Constraint("Horizontal", 11, 2, 14, 2),
    Sketcher.Constraint("Horizontal", 13, 2, 16, 2),
    Sketcher.Constraint("Horizontal", 15, 2, 18, 2),
    Sketcher.Constraint("Horizontal", 17, 2, 20, 2),
    Sketcher.Constraint("Horizontal", 19, 2, 22, 2),
    Sketcher.Constraint("Equal", 3, 5),
    Sketcher.Constraint("Equal", 7, 9),
    Sketcher.Constraint("Equal", 11, 13),
    Sketcher.Constraint("Equal", 15, 17),
    Sketcher.Constraint("DistanceX", 1, 1, 1, 2, 15.0),
    Sketcher.Constraint("DistanceX", 21, 1, 21, 2, 35.0),
    Sketcher.Constraint("DistanceY", 0, 2, 0, 1, 8.0),
    Sketcher.Constraint("DistanceX", 0, 2, -1, 1, 30.0),
    Sketcher.Constraint("DistanceY", 0, 2, -1, 1, 40.0),
    Sketcher.Constraint("DistanceX", 4, 2, -1, 1, 60.0),
    Sketcher.Constraint("DistanceX", 8, 2, -1, 1, 90.0),
    Sketcher.Constraint("DistanceX", 12, 2, -1, 1, 120.0),
    Sketcher.Constraint("DistanceX", 16, 2, -1, 1, 150.0),
    Sketcher.Constraint("DistanceX", 20, 2, -1, 1, 200.0),
])
pocket2 = doc.addObject("PartDesign::Pocket", "Pocket001")
body.addObject(pocket2)
pocket2.Profile = sketch4
pocket2.Type = "ThroughAll"
pocket2.Reversed = True

sketch5 = doc.addObject("Sketcher::SketchObject", "Sketch004")
body.addObject(sketch5)
sketch5.AttachmentSupport = (doc.XY_Plane, [""])
sketch5.MapMode = "FlatFace"
sketch5.addGeometry([
    Part.LineSegment(V(-170, 4, 0), V(-170, -4, 0)),
    Part.LineSegment(V(-170, -4, 0), V(-150, -4, 0)),
    Part.LineSegment(V(-150, -4, 0), V(-150, 4, 0)),
    Part.LineSegment(V(-150, 4, 0), V(-170, 4, 0)),
    Part.LineSegment(V(-120, 4, 0), V(-120, -4, 0)),
    Part.LineSegment(V(-120, -4, 0), V(-100, -4, 0)),
    Part.LineSegment(V(-100, -4, 0), V(-100, 4, 0)),
    Part.LineSegment(V(-100, 4, 0), V(-120, 4, 0)),
], False)
sketch5.addConstraint([
    Sketcher.Constraint("Coincident", 0, 2, 1, 1),
    Sketcher.Constraint("Coincident", 1, 2, 2, 1),
    Sketcher.Constraint("Coincident", 2, 2, 3, 1),
    Sketcher.Constraint("Coincident", 3, 2, 0, 1),
    Sketcher.Constraint("Coincident", 4, 2, 5, 1),
    Sketcher.Constraint("Coincident", 5, 2, 6, 1),
    Sketcher.Constraint("Coincident", 6, 2, 7, 1),
    Sketcher.Constraint("Coincident", 7, 2, 4, 1),
    Sketcher.Constraint("Vertical", 0),
    Sketcher.Constraint("Horizontal", 1),
    Sketcher.Constraint("Vertical", 2),
    Sketcher.Constraint("Horizontal", 3),
    Sketcher.Constraint("Vertical", 4),
    Sketcher.Constraint("Horizontal", 5),
    Sketcher.Constraint("Vertical", 6),
    Sketcher.Constraint("Horizontal", 7),
    Sketcher.Constraint("Horizontal", 1, 2, 4, 2),
    Sketcher.Constraint("Horizontal", 3, 2, 6, 2),
    Sketcher.Constraint("Equal", 3, 5),
    Sketcher.Constraint("DistanceX", 1, 1, 1, 2, 20.0),
    Sketcher.Constraint("DistanceY", 0, 2, 0, 1, 8.0),
    Sketcher.Constraint("DistanceX", 0, 2, -1, 1, 170.0),
    Sketcher.Constraint("DistanceY", 0, 2, -1, 1, 4.0),
    Sketcher.Constraint("DistanceX", 4, 2, -1, 1, 120.0),
])
pocket3 = doc.addObject("PartDesign::Pocket", "Pocket002")
body.addObject(pocket3)
pocket3.Profile = sketch5
pocket3.Type = "ThroughAll"
pocket3.Reversed = True

doc.recompute()
